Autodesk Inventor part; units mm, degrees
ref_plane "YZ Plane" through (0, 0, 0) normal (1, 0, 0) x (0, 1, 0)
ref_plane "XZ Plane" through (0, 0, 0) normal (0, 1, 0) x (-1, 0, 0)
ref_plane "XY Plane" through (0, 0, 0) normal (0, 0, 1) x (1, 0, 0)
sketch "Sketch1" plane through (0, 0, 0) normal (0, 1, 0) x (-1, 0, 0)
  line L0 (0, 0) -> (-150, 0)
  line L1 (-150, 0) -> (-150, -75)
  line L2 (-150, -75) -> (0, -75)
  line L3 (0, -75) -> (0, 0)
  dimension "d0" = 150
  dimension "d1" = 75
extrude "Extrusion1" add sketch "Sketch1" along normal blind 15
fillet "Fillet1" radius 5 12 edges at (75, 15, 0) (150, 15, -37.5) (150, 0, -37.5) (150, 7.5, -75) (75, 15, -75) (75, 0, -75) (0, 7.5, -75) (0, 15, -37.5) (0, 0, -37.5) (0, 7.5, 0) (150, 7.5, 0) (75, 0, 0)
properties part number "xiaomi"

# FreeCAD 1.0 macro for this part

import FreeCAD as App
import Part
import Sketcher

doc = App.newDocument("Part")
body = doc.addObject("PartDesign::Body", "Body")

# Sketch on XZ plane
sketch1 = doc.addObject("Sketcher::SketchObject", "Sketch")
body.addObject(sketch1)
sketch1.AttachmentSupport = (doc.XZ_Plane, [""])
sketch1.MapMode = "FlatFace"
sketch1.addGeometry(Part.LineSegment(App.Vector(0, -75, 0), App.Vector(0, 0, 0)), False)
sketch1.addGeometry(Part.LineSegment(App.Vector(0, 0, 0), App.Vector(150, 0, 0)), False)
sketch1.addGeometry(Part.LineSegment(App.Vector(150, 0, 0), App.Vector(150, -75, 0)), False)
sketch1.addGeometry(Part.LineSegment(App.Vector(150, -75, 0), App.Vector(0, -75, 0)), False)
sketch1.addConstraint(Sketcher.Constraint("Coincident", 0, 2, 1, 1))
sketch1.addConstraint(Sketcher.Constraint("Coincident", 1, 2, 2, 1))
sketch1.addConstraint(Sketcher.Constraint("Coincident", 2, 2, 3, 1))
sketch1.addConstraint(Sketcher.Constraint("Coincident", 3, 2, 0, 1))
sketch1.addConstraint(Sketcher.Constraint("Vertical", 0))
sketch1.addConstraint(Sketcher.Constraint("Horizontal", 1))
sketch1.addConstraint(Sketcher.Constraint("Vertical", 2))
sketch1.addConstraint(Sketcher.Constraint("Horizontal", 3))
sketch1.addConstraint(Sketcher.Constraint("Coincident", 0, 2, -1, 1))
sketch1.addConstraint(Sketcher.Constraint("DistanceX", 1, 1, 1, 2, 150.0))
sketch1.addConstraint(Sketcher.Constraint("DistanceY", 0, 1, 0, 2, 75.0))
pad1 = doc.addObject("PartDesign::Pad", "Pad")
body.addObject(pad1)
pad1.Profile = sketch1
pad1.Length = 15
pad1.Reversed = True
doc.recompute()

fillet = doc.addObject("PartDesign::Fillet", "Fillet")
body.addObject(fillet)
fillet.Base = (pad1, ["Edge1"])
fillet.UseAllEdges = True
fillet.Radius = 5

doc.recompute()
